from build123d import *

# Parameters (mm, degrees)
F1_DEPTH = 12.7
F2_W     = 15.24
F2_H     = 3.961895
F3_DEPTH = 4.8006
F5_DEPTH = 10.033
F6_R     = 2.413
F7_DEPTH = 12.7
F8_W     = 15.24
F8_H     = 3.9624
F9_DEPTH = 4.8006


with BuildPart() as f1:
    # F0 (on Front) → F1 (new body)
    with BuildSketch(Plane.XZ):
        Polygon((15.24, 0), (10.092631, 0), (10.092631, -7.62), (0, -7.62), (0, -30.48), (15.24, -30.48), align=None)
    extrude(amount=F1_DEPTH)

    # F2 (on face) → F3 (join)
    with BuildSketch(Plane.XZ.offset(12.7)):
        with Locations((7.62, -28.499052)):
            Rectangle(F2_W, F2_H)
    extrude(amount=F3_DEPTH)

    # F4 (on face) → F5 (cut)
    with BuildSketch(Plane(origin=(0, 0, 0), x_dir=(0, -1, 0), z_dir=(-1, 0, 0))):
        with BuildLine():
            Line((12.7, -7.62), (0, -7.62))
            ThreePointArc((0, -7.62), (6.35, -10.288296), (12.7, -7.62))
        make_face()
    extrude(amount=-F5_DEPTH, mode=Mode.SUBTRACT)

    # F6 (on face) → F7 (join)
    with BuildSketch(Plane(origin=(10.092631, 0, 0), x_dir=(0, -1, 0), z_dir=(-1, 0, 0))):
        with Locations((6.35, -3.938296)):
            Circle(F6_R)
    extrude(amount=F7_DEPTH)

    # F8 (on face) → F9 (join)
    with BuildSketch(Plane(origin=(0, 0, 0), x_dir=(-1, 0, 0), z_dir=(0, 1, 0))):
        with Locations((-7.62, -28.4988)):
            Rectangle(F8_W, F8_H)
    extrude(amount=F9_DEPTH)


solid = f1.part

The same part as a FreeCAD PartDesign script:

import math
import FreeCAD as App
import Part
import Sketcher

V = App.Vector
Q = App.Units.Quantity


def add_polygon(sketch, points):
    """Adds a closed chain of lines whose ends are joined by coincident constraints."""
    first, n = sketch.GeometryCount, len(points)
    for a, b in zip(points, points[1:] + points[:1]):
        sketch.addGeometry(Part.LineSegment(App.Vector(*a, 0), App.Vector(*b, 0)), False)
    for i in range(n):
        sketch.addConstraint(Sketcher.Constraint("Coincident", first + i, 2, first + (i + 1) % n, 1))

doc = App.newDocument("Part")
body = doc.addObject("PartDesign::Body", "Body")

sketch1 = body.newObject("Sketcher::SketchObject", "Sketch")
sketch1.AttachmentSupport = (doc.getObject("XZ_Plane"), [""])
sketch1.MapMode = "FlatFace"
add_polygon(sketch1, [(15, 0), (10, 0), (10, -8), (0, -8), (0, -30), (15, -30)])
sketch1.addConstraint([
    Sketcher.Constraint("Horizontal", 0),
    Sketcher.Constraint("Vertical", 1),
    Sketcher.Constraint("Horizontal", 2),
    Sketcher.Constraint("Vertical", 3),
    Sketcher.Constraint("Horizontal", 4),
    Sketcher.Constraint("Vertical", 5),
    Sketcher.Constraint("PointOnObject", 0, 2, -1),
    Sketcher.Constraint("PointOnObject", 2, 2, -2),
    Sketcher.Constraint("DistanceX", 4, 1, 4, 2, Q("0.6 in")),
    Sketcher.Constraint("DistanceY", 1, 2, 1, 1, Q("0.3 in")),
    Sketcher.Constraint("DistanceY", 3, 2, 3, 1, Q("0.9 in")),
    Sketcher.Constraint("DistanceX", 0, 2, 0, 1, Q("5.147369 mm")),
])
pad1 = body.newObject("PartDesign::Pad", "Pad")
pad1.Profile = sketch1
pad1.Length = Q("0.5 in")

sketch2 = body.newObject("Sketcher::SketchObject", "Sketch001")
sketch2.AttachmentSupport = (doc.getObject("XZ_Plane"), [""])
sketch2.MapMode = "FlatFace"
sketch2.AttachmentOffset = App.Placement(V(0, 0, 0.5 * 25.4), App.Rotation())
add_polygon(sketch2, [(0, -26.5), (0, -30.5), (15.2, -30.5), (15.2, -26.5)])
sketch2.addConstraint([
    Sketcher.Constraint("Vertical", 0),
    Sketcher.Constraint("Horizontal", 1),
    Sketcher.Constraint("Vertical", 2),
    Sketcher.Constraint("Horizontal", 3),
    Sketcher.Constraint("PointOnObject", 0, 2, -2),
    Sketcher.Constraint("DistanceX", 1, 1, 1, 2, Q("0.6 in")),
    Sketcher.Constraint("DistanceY", 0, 2, -1, 1, Q("1.2 in")),
    Sketcher.Constraint("DistanceY", 0, 2, 0, 1, Q("3.961895 mm")),
])
pad2 = body.newObject("PartDesign::Pad", "Pad001")
pad2.Profile = sketch2
pad2.Length = Q("0.189 in")

sketch3 = body.newObject("Sketcher::SketchObject", "Sketch002")
sketch3.AttachmentSupport = (doc.getObject("YZ_Plane"), [""])
sketch3.MapMode = "FlatFace"
sketch3.addGeometry([
    Part.LineSegment(V(-13, -8, 0), V(0, -8, 0)),
    Part.ArcOfCircle(Part.Circle(V(-6, -1, 0), V(0, 0, 1), 9), math.radians(-136), math.radians(-44)),
], False)
sketch3.addConstraint([
    Sketcher.Constraint("Coincident", 0, 1, 1, 1),
    Sketcher.Constraint("Coincident", 1, 2, 0, 2),
    Sketcher.Constraint("Horizontal", 0),
    Sketcher.Constraint("PointOnObject", 1, 2, -2),
    Sketcher.Constraint("Radius", 1, Q("0.35 in")),
    Sketcher.Constraint("DistanceX", 0, 1, 0, 2, Q("0.5 in")),
    Sketcher.Constraint("DistanceY", 0, 1, -1, 1, Q("0.3 in")),
])
pocket1 = body.newObject("PartDesign::Pocket", "Pocket")
pocket1.Profile = sketch3
pocket1.Length = Q("0.395 in")
pocket1.Reversed = True

sketch4 = body.newObject("Sketcher::SketchObject", "Sketch003")
sketch4.AttachmentSupport = (doc.getObject("YZ_Plane"), [""])
sketch4.MapMode = "FlatFace"
sketch4.AttachmentOffset = App.Placement(V(0, 0, 10.092631), App.Rotation())
sketch4.addGeometry(Part.Circle(V(-6.3, -3.9, 0), V(0, 0, 1), 2.4), False)
sketch4.addConstraint([
    Sketcher.Constraint("Diameter", 0, Q("0.19 in")),
    Sketcher.Constraint("DistanceX", 0, 3, -1, 1, Q("0.25 in")),
    Sketcher.Constraint("DistanceY", 0, 3, -1, 1, Q("3.938296 mm")),
])
pad3 = body.newObject("PartDesign::Pad", "Pad002")
pad3.Profile = sketch4
pad3.Length = Q("0.5 in")
pad3.Reversed = True

sketch5 = body.newObject("Sketcher::SketchObject", "Sketch004")
sketch5.AttachmentSupport = (doc.getObject("XZ_Plane"), [""])
sketch5.MapMode = "FlatFace"
add_polygon(sketch5, [(15.2, -26.5), (15.2, -30.5), (0, -30.5), (0, -26.5)])
sketch5.addConstraint([
    Sketcher.Constraint("Vertical", 0),
    Sketcher.Constraint("Horizontal", 1),
    Sketcher.Constraint("Vertical", 2),
    Sketcher.Constraint("Horizontal", 3),
    Sketcher.Constraint("PointOnObject", 1, 2, -2),
    Sketcher.Constraint("DistanceX", 1, 2, 1, 1, Q("0.6 in")),
    Sketcher.Constraint("DistanceY", 0, 2, -1, 1, Q("1.2 in")),
    Sketcher.Constraint("DistanceY", 0, 2, 0, 1, Q("0.156 in")),
])
pad4 = body.newObject("PartDesign::Pad", "Pad003")
pad4.Profile = sketch5
pad4.Length = Q("0.189 in")
pad4.Reversed = True

doc.recompute()
